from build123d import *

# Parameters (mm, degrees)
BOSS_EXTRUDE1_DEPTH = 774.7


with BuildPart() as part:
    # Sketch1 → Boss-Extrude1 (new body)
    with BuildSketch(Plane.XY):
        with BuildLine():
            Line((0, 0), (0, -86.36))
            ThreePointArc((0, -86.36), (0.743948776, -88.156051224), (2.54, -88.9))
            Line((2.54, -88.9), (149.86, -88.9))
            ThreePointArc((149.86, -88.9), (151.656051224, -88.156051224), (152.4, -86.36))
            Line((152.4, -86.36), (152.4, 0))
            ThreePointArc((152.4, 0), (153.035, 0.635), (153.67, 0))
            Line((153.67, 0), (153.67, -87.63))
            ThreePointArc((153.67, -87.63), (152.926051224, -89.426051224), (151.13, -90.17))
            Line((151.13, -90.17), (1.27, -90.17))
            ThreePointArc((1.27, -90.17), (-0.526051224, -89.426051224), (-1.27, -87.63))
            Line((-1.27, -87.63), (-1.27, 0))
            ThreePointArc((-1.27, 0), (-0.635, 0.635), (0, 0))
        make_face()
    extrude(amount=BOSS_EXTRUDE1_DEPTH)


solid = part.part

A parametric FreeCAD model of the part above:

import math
import FreeCAD as App
import Part
import Sketcher
from FreeCAD import Vector
Q = App.Units.Quantity

doc = App.newDocument("Part")
body = doc.addObject("PartDesign::Body", "Body")

# Sketch on XY plane
sketch1 = doc.addObject("Sketcher::SketchObject", "Sketch")
body.addObject(sketch1)
sketch1.AttachmentSupport = (doc.XY_Plane, [""])
sketch1.MapMode = "FlatFace"
sketch1.addGeometry(Part.LineSegment(Vector(0, -86.4, 0), Vector(0, 0, 0)), False)
sketch1.addGeometry(Part.ArcOfCircle(Part.Circle(Vector(-0.6, 0, 0), Vector(0, 0, 1), 0.6), math.radians(0), math.radians(180)), False)
sketch1.addGeometry(Part.LineSegment(Vector(-1.3, 0, 0), Vector(-1.3, -87.6, 0)), False)
sketch1.addGeometry(Part.ArcOfCircle(Part.Circle(Vector(1.3, -87.6, 0), Vector(0, 0, 1), 2.5), math.radians(-180), math.radians(-90)), False)
sketch1.addGeometry(Part.LineSegment(Vector(1.3, -90.2, 0), Vector(151.1, -90.2, 0)), False)
sketch1.addGeometry(Part.ArcOfCircle(Part.Circle(Vector(151.1, -87.6, 0), Vector(0, 0, 1), 2.5), math.radians(-90), math.radians(0)), False)
sketch1.addGeometry(Part.LineSegment(Vector(153.7, -87.6, 0), Vector(153.7, 0, 0)), False)
sketch1.addGeometry(Part.ArcOfCircle(Part.Circle(Vector(153, 0, 0), Vector(0, 0, 1), 0.6), math.radians(0), math.radians(180)), False)
sketch1.addGeometry(Part.LineSegment(Vector(152.4, 0, 0), Vector(152.4, -86.4, 0)), False)
sketch1.addGeometry(Part.ArcOfCircle(Part.Circle(Vector(149.9, -86.4, 0), Vector(0, 0, 1), 2.5), math.radians(-90), math.radians(0)), False)
sketch1.addGeometry(Part.LineSegment(Vector(149.9, -88.9, 0), Vector(2.5, -88.9, 0)), False)
sketch1.addGeometry(Part.ArcOfCircle(Part.Circle(Vector(2.5, -86.4, 0), Vector(0, 0, 1), 2.5), math.radians(-180), math.radians(-90)), False)
sketch1.addConstraint(Sketcher.Constraint("Tangent", 0, 2, 1, 1))
sketch1.addConstraint(Sketcher.Constraint("Tangent", 1, 2, 2, 1))
sketch1.addConstraint(Sketcher.Constraint("Tangent", 2, 2, 3, 1))
sketch1.addConstraint(Sketcher.Constraint("Tangent", 3, 2, 4, 1))
sketch1.addConstraint(Sketcher.Constraint("Tangent", 4, 2, 5, 1))
sketch1.addConstraint(Sketcher.Constraint("Tangent", 5, 2, 6, 1))
sketch1.addConstraint(Sketcher.Constraint("Tangent", 6, 2, 7, 1))
sketch1.addConstraint(Sketcher.Constraint("Tangent", 7, 2, 8, 1))
sketch1.addConstraint(Sketcher.Constraint("Tangent", 8, 2, 9, 2))
sketch1.addConstraint(Sketcher.Constraint("Tangent", 9, 1, 10, 1))
sketch1.addConstraint(Sketcher.Constraint("Tangent", 10, 2, 11, 2))
sketch1.addConstraint(Sketcher.Constraint("Tangent", 11, 1, 0, 1))
sketch1.addConstraint(Sketcher.Constraint("Vertical", 0))
sketch1.addConstraint(Sketcher.Constraint("Vertical", 2))
sketch1.addConstraint(Sketcher.Constraint("Horizontal", 4))
sketch1.addConstraint(Sketcher.Constraint("Vertical", 6))
sketch1.addConstraint(Sketcher.Constraint("Vertical", 8))
sketch1.addConstraint(Sketcher.Constraint("Horizontal", 10))
sketch1.addConstraint(Sketcher.Constraint("Coincident", 0, 2, -1, 1))
sketch1.addConstraint(Sketcher.Constraint("Equal", 3, 5))
sketch1.addConstraint(Sketcher.Constraint("Equal", 1, 7))
sketch1.addConstraint(Sketcher.Constraint("Equal", 5, 9))
sketch1.addConstraint(Sketcher.Constraint("Equal", 9, 11))
sketch1.addConstraint(Sketcher.Constraint("PointOnObject", 7, 3, -1))
sketch1.addConstraint(Sketcher.Constraint("Radius", 3, Q("0.1 in")))
sketch1.addConstraint(Sketcher.Constraint("DistanceX", 4, 1, 4, 2, Q("5.9 in")))
sketch1.addConstraint(Sketcher.Constraint("DistanceX", 10, 2, 10, 1, Q("5.8 in")))
sketch1.addConstraint(Sketcher.Constraint("DistanceY", 0, 1, 0, 2, Q("3.4 in")))
sketch1.addConstraint(Sketcher.Constraint("DistanceY", 2, 2, 2, 1, Q("3.45 in")))
pad1 = doc.addObject("PartDesign::Pad", "Pad")
body.addObject(pad1)
pad1.Profile = sketch1
pad1.Length = Q("30.5 in")

doc.recompute()
